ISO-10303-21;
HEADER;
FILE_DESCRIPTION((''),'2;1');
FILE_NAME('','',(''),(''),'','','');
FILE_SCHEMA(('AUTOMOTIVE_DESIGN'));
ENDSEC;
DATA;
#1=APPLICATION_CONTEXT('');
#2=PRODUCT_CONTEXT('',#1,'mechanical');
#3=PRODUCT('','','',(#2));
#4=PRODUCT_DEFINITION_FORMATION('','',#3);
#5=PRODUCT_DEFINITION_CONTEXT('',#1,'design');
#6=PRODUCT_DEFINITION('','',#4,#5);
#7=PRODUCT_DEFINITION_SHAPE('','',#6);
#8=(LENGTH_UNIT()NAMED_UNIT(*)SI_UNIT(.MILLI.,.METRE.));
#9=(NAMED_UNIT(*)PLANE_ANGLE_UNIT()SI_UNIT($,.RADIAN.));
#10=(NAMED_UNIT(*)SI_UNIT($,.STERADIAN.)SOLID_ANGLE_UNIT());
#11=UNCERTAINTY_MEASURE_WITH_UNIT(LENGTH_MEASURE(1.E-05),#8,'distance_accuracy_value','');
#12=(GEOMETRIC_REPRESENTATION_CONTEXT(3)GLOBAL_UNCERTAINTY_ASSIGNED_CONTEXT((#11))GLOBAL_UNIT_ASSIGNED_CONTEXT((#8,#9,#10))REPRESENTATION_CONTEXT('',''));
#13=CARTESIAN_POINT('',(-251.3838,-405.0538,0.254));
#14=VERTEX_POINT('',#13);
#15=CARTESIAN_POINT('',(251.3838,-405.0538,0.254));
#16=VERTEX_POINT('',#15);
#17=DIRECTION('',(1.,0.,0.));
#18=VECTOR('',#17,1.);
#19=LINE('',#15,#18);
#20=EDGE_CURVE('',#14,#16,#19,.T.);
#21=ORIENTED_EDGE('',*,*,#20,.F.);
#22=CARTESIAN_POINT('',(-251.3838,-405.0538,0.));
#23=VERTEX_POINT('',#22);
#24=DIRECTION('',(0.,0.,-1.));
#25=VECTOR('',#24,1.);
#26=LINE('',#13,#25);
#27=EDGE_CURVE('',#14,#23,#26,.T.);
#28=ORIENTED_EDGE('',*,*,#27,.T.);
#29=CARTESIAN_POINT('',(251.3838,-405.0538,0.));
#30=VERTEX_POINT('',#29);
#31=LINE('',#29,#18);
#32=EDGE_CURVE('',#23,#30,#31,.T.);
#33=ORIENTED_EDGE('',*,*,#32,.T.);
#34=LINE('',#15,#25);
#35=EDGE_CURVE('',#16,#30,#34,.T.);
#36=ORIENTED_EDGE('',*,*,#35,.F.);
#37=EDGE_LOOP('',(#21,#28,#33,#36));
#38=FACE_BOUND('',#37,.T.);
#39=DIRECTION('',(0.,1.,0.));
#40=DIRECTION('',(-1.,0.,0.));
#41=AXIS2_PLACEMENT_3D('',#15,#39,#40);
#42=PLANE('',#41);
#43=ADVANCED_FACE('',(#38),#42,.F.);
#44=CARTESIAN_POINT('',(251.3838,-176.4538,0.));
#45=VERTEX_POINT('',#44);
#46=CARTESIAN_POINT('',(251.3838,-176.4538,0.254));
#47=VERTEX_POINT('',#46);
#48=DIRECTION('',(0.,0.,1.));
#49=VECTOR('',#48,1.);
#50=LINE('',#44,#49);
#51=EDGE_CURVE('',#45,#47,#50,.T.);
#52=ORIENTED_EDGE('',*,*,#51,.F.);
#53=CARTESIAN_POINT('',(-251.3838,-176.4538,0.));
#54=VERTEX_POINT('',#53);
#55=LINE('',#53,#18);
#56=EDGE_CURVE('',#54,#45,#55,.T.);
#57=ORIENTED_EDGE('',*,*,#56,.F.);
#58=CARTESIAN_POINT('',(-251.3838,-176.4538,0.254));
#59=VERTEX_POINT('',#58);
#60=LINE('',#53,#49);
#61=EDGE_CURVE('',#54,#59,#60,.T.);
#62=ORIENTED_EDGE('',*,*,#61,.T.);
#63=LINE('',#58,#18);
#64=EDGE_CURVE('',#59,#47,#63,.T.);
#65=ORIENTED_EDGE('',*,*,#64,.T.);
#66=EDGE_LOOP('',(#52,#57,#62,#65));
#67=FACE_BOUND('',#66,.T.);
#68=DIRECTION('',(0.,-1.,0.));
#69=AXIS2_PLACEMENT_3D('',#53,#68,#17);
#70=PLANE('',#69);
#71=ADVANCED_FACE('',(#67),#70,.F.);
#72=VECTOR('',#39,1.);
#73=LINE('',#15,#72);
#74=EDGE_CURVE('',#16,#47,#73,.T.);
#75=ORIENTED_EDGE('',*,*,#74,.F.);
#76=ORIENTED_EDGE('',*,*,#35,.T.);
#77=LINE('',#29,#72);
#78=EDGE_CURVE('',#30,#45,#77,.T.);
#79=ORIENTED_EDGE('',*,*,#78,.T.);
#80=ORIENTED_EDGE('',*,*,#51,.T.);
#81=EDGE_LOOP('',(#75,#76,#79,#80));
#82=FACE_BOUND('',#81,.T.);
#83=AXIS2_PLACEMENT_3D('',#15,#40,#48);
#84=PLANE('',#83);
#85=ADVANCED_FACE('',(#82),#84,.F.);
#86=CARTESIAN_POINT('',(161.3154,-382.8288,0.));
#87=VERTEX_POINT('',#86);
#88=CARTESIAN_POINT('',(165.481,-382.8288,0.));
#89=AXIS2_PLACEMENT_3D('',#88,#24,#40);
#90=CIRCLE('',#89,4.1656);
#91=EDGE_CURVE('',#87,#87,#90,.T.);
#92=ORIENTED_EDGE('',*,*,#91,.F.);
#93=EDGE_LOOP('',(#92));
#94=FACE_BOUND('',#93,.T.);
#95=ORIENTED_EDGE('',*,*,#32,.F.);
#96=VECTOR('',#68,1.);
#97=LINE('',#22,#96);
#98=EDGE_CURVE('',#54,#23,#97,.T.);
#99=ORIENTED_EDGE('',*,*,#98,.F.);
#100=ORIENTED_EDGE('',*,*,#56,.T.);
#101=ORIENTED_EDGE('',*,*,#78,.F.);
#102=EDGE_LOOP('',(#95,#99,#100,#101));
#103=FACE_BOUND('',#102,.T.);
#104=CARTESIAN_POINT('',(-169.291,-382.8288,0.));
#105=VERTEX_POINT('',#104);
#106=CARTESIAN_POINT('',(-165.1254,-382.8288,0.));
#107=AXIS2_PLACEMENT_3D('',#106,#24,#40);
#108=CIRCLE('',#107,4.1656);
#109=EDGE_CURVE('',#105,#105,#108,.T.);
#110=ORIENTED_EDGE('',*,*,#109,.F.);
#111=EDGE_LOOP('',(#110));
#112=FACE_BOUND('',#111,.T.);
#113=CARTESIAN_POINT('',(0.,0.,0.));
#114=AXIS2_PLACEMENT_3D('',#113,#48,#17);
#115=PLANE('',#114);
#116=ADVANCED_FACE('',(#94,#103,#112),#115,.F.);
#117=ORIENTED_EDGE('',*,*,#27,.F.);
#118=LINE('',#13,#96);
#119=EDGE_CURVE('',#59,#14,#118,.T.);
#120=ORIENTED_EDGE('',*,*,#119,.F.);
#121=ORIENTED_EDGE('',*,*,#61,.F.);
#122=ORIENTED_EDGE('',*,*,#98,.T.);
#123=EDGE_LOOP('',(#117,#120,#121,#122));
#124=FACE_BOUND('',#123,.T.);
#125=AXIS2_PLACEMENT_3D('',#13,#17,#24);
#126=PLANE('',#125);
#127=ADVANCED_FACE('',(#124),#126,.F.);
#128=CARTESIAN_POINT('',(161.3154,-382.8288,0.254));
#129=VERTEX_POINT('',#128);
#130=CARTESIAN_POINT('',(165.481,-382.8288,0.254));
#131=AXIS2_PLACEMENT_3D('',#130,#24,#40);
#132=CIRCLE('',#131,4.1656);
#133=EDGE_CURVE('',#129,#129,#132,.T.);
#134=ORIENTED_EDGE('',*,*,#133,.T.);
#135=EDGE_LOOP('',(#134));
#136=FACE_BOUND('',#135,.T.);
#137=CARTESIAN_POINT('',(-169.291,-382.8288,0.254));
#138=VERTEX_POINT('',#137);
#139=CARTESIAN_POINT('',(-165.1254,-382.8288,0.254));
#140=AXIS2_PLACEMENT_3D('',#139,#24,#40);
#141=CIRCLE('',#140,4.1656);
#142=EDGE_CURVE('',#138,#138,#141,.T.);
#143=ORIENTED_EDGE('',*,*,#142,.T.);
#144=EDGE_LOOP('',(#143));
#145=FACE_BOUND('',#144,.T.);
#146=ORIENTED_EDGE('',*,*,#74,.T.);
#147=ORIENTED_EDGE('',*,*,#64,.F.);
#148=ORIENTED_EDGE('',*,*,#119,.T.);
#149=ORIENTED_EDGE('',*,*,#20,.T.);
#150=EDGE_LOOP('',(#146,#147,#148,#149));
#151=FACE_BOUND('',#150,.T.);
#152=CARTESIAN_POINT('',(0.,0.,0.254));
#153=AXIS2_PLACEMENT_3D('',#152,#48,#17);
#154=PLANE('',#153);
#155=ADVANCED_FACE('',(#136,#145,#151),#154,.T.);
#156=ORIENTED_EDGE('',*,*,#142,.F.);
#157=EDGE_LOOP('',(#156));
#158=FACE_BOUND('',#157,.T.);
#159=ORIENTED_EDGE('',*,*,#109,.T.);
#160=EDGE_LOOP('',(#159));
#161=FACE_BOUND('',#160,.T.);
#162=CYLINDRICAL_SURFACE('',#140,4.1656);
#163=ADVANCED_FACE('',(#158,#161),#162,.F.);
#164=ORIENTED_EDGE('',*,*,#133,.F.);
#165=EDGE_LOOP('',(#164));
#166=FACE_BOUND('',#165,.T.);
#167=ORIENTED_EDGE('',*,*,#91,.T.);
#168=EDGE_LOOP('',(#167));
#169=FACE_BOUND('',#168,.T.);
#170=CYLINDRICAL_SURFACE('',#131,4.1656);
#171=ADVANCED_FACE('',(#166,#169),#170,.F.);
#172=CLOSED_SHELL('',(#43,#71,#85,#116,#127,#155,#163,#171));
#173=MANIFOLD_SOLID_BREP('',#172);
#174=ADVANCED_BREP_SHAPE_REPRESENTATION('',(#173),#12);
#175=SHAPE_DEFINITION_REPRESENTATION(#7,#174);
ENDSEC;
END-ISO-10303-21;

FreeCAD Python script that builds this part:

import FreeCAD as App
import Part
import Sketcher

V = App.Vector
Q = App.Units.Quantity

doc = App.newDocument("Part")
body = doc.addObject("PartDesign::Body", "Body")

# Sketch on XY plane
sketch1 = body.newObject("Sketcher::SketchObject", "Sketch")
sketch1.AttachmentSupport = (doc.getObject("XY_Plane"), [""])
sketch1.MapMode = "FlatFace"
sketch1.addGeometry([
    Part.LineSegment(V(-251.3838, 405.0538, 0), V(-251.3838, -405.0538, 0)),
    Part.LineSegment(V(-251.3838, -405.0538, 0), V(251.3838, -405.0538, 0)),
    Part.LineSegment(V(251.3838, -405.0538, 0), V(251.3838, 405.0538, 0)),
    Part.LineSegment(V(251.3838, 405.0538, 0), V(-251.3838, 405.0538, 0)),
], False)
sketch1.addConstraint([
    Sketcher.Constraint("Coincident", 0, 2, 1, 1),
    Sketcher.Constraint("Coincident", 1, 2, 2, 1),
    Sketcher.Constraint("Coincident", 2, 2, 3, 1),
    Sketcher.Constraint("Coincident", 3, 2, 0, 1),
    Sketcher.Constraint("Vertical", 0),
    Sketcher.Constraint("Horizontal", 1),
    Sketcher.Constraint("Vertical", 2),
    Sketcher.Constraint("Horizontal", 3),
    Sketcher.Constraint("Symmetric", 0, 2, 2, 2, -1, 1),
    Sketcher.Constraint("DistanceX", 1, 1, 1, 2, Q("19.794 in")),
    Sketcher.Constraint("DistanceY", 0, 2, 0, 1, Q("31.894 in")),
])
pad1 = body.newObject("PartDesign::Pad", "Pad")
pad1.Profile = sketch1
pad1.Length = Q("0.01 in")

# Sketch on XY plane
sketch2 = body.newObject("Sketcher::SketchObject", "Sketch001")
sketch2.AttachmentSupport = (doc.getObject("XY_Plane"), [""])
sketch2.MapMode = "FlatFace"
sketch2.addGeometry([
    Part.Circle(V(165.481, 395.1478, 0), V(0, 0, 1), 4.1656),
    Part.Circle(V(-165.1254, 395.1478, 0), V(0, 0, 1), 4.1656),
    Part.Circle(V(-165.1254, -382.8288, 0), V(0, 0, 1), 4.1656),
    Part.Circle(V(165.481, -382.8288, 0), V(0, 0, 1), 4.1656),
], False)
sketch2.addConstraint([
    Sketcher.Constraint("Equal", 0, 1),
    Sketcher.Constraint("Equal", 1, 2),
    Sketcher.Constraint("Equal", 2, 3),
    Sketcher.Constraint("Horizontal", 0, 3, 1, 3),
    Sketcher.Constraint("Horizontal", 2, 3, 3, 3),
    Sketcher.Constraint("Vertical", 1, 3, 2, 3),
    Sketcher.Constraint("Vertical", 0, 3, 3, 3),
    Sketcher.Constraint("Diameter", 0, Q("0.328 in")),
    Sketcher.Constraint("DistanceX", -1, 1, 0, 3, Q("6.515 in")),
    Sketcher.Constraint("DistanceY", -1, 1, 0, 3, Q("15.557 in")),
    Sketcher.Constraint("DistanceX", 1, 3, -1, 1, Q("6.501 in")),
    Sketcher.Constraint("DistanceY", 2, 3, -1, 1, Q("15.072 in")),
])
pocket1 = body.newObject("PartDesign::Pocket", "Pocket")
pocket1.Profile = sketch2
pocket1.Type = "ThroughAll"
pocket1.Reversed = True

# Sketch on XY plane
sketch3 = body.newObject("Sketcher::SketchObject", "Sketch002")
sketch3.AttachmentSupport = (doc.getObject("XY_Plane"), [""])
sketch3.MapMode = "FlatFace"
sketch3.AttachmentOffset = App.Placement(V(0, 0, 0.01 * 25.4), App.Rotation())
sketch3.addGeometry([
    Part.LineSegment(V(-251.3838, 405.0538, 0), V(-251.3838, -176.4538, 0)),
    Part.LineSegment(V(-251.3838, -176.4538, 0), V(251.3838, -176.4538, 0)),
    Part.LineSegment(V(251.3838, -176.4538, 0), V(251.3838, 405.0538, 0)),
    Part.LineSegment(V(251.3838, 405.0538, 0), V(-251.3838, 405.0538, 0)),
], False)
sketch3.addConstraint([
    Sketcher.Constraint("Coincident", 0, 2, 1, 1),
    Sketcher.Constraint("Coincident", 1, 2, 2, 1),
    Sketcher.Constraint("Coincident", 2, 2, 3, 1),
    Sketcher.Constraint("Coincident", 3, 2, 0, 1),
    Sketcher.Constraint("Vertical", 0),
    Sketcher.Constraint("Horizontal", 1),
    Sketcher.Constraint("Vertical", 2),
    Sketcher.Constraint("Horizontal", 3),
    Sketcher.Constraint("DistanceX", 1, 1, 1, 2, Q("19.794 in")),
    Sketcher.Constraint("DistanceY", 0, 2, 0, 1, Q("22.894 in")),
    Sketcher.Constraint("DistanceX", 0, 2, -1, 1, Q("9.897 in")),
    Sketcher.Constraint("DistanceY", 0, 2, -1, 1, Q("6.947 in")),
])
pocket2 = body.newObject("PartDesign::Pocket", "Pocket001")
pocket2.Profile = sketch3
pocket2.Type = "ThroughAll"

doc.recompute()
